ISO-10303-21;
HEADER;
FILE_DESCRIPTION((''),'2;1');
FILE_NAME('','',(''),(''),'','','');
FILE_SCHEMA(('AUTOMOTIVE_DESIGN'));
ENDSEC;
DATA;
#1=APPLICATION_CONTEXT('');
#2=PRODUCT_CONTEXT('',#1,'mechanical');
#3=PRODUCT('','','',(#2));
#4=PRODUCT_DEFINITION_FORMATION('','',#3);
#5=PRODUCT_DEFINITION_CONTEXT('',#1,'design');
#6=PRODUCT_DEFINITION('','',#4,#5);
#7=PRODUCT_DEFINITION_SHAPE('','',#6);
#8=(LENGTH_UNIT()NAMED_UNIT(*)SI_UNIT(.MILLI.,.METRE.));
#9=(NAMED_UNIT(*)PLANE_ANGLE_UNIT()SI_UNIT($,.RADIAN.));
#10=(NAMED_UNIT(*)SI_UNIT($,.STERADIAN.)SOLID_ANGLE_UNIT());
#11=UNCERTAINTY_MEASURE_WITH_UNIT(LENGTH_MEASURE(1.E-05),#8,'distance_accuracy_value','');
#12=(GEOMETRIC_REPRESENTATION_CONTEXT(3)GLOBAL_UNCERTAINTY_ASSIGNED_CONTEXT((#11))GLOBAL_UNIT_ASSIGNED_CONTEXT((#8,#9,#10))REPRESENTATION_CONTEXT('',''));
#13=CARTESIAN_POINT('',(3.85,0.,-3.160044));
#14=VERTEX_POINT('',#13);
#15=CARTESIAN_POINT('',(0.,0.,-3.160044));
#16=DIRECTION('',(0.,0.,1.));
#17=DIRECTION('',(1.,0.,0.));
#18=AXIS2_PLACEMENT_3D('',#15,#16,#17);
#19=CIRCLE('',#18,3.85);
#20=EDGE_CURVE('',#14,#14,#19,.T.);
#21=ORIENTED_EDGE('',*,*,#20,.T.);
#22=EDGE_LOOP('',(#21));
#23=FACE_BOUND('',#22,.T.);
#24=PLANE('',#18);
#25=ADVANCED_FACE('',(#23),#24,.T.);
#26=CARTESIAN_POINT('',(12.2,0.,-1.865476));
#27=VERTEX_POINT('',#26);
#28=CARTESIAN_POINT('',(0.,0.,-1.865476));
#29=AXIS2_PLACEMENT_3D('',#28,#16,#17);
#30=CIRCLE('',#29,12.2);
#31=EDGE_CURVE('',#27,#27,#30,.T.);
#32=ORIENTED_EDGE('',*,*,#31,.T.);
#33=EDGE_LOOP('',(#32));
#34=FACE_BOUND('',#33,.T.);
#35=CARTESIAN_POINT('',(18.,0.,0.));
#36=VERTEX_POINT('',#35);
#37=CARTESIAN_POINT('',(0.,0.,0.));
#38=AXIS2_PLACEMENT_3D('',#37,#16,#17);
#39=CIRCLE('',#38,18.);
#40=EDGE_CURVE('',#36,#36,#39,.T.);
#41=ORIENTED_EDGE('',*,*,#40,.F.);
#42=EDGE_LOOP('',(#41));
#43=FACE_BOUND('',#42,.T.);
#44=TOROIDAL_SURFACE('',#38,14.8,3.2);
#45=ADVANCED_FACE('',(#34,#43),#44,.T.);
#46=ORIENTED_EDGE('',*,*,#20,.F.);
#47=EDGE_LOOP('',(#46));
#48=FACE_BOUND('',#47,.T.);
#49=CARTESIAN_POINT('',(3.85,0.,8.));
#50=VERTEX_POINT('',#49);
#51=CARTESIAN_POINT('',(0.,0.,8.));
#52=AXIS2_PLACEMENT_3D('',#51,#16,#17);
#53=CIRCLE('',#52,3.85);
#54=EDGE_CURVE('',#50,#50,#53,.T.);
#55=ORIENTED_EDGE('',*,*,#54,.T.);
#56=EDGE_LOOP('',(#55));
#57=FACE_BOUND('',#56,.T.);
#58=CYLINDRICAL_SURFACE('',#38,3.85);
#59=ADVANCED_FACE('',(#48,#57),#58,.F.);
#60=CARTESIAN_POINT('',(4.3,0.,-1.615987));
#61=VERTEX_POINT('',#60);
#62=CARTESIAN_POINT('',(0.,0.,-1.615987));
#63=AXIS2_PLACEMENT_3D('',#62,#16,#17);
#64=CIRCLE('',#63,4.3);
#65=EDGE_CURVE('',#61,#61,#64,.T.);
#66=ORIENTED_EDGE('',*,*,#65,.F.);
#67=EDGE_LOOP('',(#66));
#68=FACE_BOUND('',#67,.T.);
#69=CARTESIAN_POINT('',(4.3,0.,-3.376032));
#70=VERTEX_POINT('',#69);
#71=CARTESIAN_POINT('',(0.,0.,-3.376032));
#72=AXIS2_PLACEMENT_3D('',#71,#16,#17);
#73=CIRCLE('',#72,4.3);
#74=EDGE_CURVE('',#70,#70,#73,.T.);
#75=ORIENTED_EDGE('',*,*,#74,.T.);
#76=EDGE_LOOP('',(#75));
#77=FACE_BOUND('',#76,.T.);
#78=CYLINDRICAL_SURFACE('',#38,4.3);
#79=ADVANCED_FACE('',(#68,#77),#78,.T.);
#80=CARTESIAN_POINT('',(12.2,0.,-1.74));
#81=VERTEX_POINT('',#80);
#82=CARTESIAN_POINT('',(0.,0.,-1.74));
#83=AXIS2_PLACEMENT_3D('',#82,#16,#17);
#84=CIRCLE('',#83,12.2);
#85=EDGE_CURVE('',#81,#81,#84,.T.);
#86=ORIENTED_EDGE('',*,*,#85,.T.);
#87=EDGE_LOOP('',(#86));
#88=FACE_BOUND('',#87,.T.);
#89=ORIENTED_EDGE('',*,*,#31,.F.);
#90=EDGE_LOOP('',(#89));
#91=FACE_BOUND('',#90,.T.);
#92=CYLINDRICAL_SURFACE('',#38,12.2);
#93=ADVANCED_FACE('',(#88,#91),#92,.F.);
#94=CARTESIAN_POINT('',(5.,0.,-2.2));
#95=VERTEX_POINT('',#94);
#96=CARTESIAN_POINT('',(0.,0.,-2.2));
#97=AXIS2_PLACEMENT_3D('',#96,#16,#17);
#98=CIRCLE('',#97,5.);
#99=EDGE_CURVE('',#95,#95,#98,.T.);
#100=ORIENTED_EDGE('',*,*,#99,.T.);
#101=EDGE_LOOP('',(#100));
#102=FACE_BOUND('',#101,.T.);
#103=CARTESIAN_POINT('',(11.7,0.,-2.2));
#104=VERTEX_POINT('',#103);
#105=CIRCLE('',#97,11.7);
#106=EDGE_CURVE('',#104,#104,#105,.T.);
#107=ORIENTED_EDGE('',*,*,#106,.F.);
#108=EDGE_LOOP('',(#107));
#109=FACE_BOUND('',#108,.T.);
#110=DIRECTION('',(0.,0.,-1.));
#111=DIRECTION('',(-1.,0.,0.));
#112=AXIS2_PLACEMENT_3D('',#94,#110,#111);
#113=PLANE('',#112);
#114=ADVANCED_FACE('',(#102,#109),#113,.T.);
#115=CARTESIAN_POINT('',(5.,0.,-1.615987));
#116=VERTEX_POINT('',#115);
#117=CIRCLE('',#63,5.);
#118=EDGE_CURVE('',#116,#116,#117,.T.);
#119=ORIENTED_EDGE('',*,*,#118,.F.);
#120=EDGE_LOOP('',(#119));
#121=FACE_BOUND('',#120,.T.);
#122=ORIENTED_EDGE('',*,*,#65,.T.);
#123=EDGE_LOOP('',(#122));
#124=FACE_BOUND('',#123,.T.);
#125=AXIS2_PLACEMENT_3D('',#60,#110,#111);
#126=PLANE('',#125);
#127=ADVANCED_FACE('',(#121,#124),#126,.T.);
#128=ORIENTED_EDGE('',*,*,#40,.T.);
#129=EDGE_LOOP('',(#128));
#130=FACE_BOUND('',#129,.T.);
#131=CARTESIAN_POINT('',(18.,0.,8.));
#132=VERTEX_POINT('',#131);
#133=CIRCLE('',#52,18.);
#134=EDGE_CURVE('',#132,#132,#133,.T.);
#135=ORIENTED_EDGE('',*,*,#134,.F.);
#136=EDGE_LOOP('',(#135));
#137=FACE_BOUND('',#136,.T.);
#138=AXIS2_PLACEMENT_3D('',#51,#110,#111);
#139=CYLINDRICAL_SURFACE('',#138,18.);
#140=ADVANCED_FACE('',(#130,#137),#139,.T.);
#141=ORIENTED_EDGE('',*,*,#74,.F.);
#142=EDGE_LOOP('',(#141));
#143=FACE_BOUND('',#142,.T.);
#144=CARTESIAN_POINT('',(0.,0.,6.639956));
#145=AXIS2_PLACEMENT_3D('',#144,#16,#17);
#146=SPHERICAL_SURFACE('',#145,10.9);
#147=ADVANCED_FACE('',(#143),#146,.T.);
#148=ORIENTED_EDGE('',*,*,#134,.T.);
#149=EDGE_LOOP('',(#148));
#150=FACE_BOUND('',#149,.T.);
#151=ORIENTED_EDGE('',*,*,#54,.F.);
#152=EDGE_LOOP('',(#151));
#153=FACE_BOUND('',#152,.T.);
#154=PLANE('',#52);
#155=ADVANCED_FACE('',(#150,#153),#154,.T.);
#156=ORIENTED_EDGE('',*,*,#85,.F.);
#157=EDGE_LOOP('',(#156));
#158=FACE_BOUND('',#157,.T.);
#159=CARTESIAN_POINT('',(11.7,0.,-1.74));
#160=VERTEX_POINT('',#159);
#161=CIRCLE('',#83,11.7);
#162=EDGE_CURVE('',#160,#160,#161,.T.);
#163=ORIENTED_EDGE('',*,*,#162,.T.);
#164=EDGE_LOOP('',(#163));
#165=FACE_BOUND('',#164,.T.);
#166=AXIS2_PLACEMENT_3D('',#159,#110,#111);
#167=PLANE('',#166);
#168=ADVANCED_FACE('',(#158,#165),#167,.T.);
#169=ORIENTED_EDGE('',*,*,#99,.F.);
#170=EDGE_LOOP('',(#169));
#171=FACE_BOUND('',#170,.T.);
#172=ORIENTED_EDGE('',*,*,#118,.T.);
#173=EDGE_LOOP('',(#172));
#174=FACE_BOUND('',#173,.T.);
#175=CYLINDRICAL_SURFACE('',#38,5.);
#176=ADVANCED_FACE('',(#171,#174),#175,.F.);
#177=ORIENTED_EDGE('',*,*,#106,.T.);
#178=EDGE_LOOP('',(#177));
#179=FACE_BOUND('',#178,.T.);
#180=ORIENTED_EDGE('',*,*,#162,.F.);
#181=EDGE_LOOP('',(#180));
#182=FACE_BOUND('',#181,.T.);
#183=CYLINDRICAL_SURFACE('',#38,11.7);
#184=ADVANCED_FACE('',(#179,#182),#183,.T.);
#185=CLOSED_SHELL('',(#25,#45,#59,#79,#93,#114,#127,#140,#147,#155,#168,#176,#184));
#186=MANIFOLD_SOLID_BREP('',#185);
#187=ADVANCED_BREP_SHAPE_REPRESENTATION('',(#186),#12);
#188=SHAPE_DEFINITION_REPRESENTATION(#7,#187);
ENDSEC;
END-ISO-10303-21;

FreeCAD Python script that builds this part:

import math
import FreeCAD as App
import Part
import Sketcher

doc = App.newDocument("Part")
params = doc.addObject("Spreadsheet::Sheet", "Params")
for row, (alias, value) in enumerate([
    ("sketch1_radius", "3.2 mm"),
    ("sketch1_radius2", "10.9 mm"),
    ("sketch1_width", "0.5 mm"),
    ("sketch1_width2", "6.7 mm"),
    ("sketch1_width3", "0.7 mm"),
    ("revolution_angle", "360 deg"),
    ("sketch2_diameter", "36 mm"),
    ("sketch2_diameter2", "7.7 mm"),
    ("pad1_length", "8 mm"),
], start=1):
    params.set(f"A{row}", alias)
    params.set(f"B{row}", "=" + value)
    params.setAlias(f"B{row}", alias)

body = doc.addObject("PartDesign::Body", "Body")

# Sketch on XZ plane
sketch1 = doc.addObject("Sketcher::SketchObject", "Sketch")
body.addObject(sketch1)
sketch1.AttachmentSupport = (doc.XZ_Plane, [""])
sketch1.MapMode = "FlatFace"
sketch1.addGeometry(Part.LineSegment(App.Vector(0, -3.16, 0), App.Vector(3.85, -3.16, 0)), False)
sketch1.addGeometry(Part.LineSegment(App.Vector(3.85, -3.16, 0), App.Vector(3.85, 0, 0)), False)
sketch1.addGeometry(Part.LineSegment(App.Vector(3.85, 0, 0), App.Vector(18, 0, 0)), False)
sketch1.addGeometry(Part.ArcOfCircle(Part.Circle(App.Vector(14.8, 0, 0), App.Vector(0, 0, 1), 3.2), math.radians(-144), math.radians(0)), False)
sketch1.addGeometry(Part.LineSegment(App.Vector(12.2, -1.87, 0), App.Vector(12.2, -1.74, 0)), False)
sketch1.addGeometry(Part.LineSegment(App.Vector(12.2, -1.74, 0), App.Vector(11.7, -1.74, 0)), False)
sketch1.addGeometry(Part.LineSegment(App.Vector(11.7, -1.74, 0), App.Vector(11.7, -2.2, 0)), False)
sketch1.addGeometry(Part.LineSegment(App.Vector(11.7, -2.2, 0), App.Vector(5, -2.2, 0)), False)
sketch1.addGeometry(Part.LineSegment(App.Vector(5, -2.2, 0), App.Vector(5, -1.62, 0)), False)
sketch1.addGeometry(Part.LineSegment(App.Vector(5, -1.62, 0), App.Vector(4.3, -1.62, 0)), False)
sketch1.addGeometry(Part.LineSegment(App.Vector(4.3, -1.62, 0), App.Vector(4.3, -3.38, 0)), False)
sketch1.addGeometry(Part.ArcOfCircle(Part.Circle(App.Vector(0, 6.64, 0), App.Vector(0, 0, 1), 10.9), math.radians(-90), math.radians(-67)), False)
sketch1.addGeometry(Part.LineSegment(App.Vector(0, -4.26, 0), App.Vector(0, -3.16, 0)), False)
sketch1.addConstraint(Sketcher.Constraint("Coincident", 0, 2, 1, 1))
sketch1.addConstraint(Sketcher.Constraint("Coincident", 1, 2, 2, 1))
sketch1.addConstraint(Sketcher.Constraint("Coincident", 2, 2, 3, 2))
sketch1.addConstraint(Sketcher.Constraint("Coincident", 3, 1, 4, 1))
sketch1.addConstraint(Sketcher.Constraint("Coincident", 4, 2, 5, 1))
sketch1.addConstraint(Sketcher.Constraint("Coincident", 5, 2, 6, 1))
sketch1.addConstraint(Sketcher.Constraint("Coincident", 6, 2, 7, 1))
sketch1.addConstraint(Sketcher.Constraint("Coincident", 7, 2, 8, 1))
sketch1.addConstraint(Sketcher.Constraint("Coincident", 8, 2, 9, 1))
sketch1.addConstraint(Sketcher.Constraint("Coincident", 9, 2, 10, 1))
sketch1.addConstraint(Sketcher.Constraint("Coincident", 10, 2, 11, 2))
sketch1.addConstraint(Sketcher.Constraint("Coincident", 11, 1, 12, 1))
sketch1.addConstraint(Sketcher.Constraint("Coincident", 12, 2, 0, 1))
sketch1.addConstraint(Sketcher.Constraint("Horizontal", 0))
sketch1.addConstraint(Sketcher.Constraint("Vertical", 1))
sketch1.addConstraint(Sketcher.Constraint("Horizontal", 2))
sketch1.addConstraint(Sketcher.Constraint("Vertical", 4))
sketch1.addConstraint(Sketcher.Constraint("Horizontal", 5))
sketch1.addConstraint(Sketcher.Constraint("Vertical", 6))
sketch1.addConstraint(Sketcher.Constraint("Horizontal", 7))
sketch1.addConstraint(Sketcher.Constraint("Vertical", 8))
sketch1.addConstraint(Sketcher.Constraint("Horizontal", 9))
sketch1.addConstraint(Sketcher.Constraint("Vertical", 10))
sketch1.addConstraint(Sketcher.Constraint("Vertical", 12))
sketch1.addConstraint(Sketcher.Constraint("PointOnObject", 3, 3, -1))
sketch1.addConstraint(Sketcher.Constraint("PointOnObject", 11, 3, -2))
sketch1.addConstraint(Sketcher.Constraint("PointOnObject", 1, 2, -1))
sketch1.addConstraint(Sketcher.Constraint("PointOnObject", 11, 1, -2))
sketch1.addConstraint(Sketcher.Constraint("Radius", 3, 3.2))
sketch1.addConstraint(Sketcher.Constraint("Radius", 11, 10.9))
sketch1.addConstraint(Sketcher.Constraint("DistanceX", 5, 2, 5, 1, 0.5))
sketch1.addConstraint(Sketcher.Constraint("DistanceX", 7, 2, 7, 1, 6.7))
sketch1.addConstraint(Sketcher.Constraint("DistanceX", 9, 2, 9, 1, 0.7))
sketch1.addConstraint(Sketcher.Constraint("DistanceY", 12, 1, 12, 2, 1.1))
sketch1.addConstraint(Sketcher.Constraint("DistanceX", -1, 1, 2, 2, 18.0))
sketch1.addConstraint(Sketcher.Constraint("DistanceX", -1, 1, 7, 2, 5.0))
sketch1.addConstraint(Sketcher.Constraint("DistanceX", 0, 1, 0, 2, 3.85))
sketch1.addConstraint(Sketcher.Constraint("DistanceY", 6, 2, 6, 1, 0.46))
sketch1.addConstraint(Sketcher.Constraint("DistanceY", 6, 2, -1, 1, 2.2))
sketch1.addConstraint(Sketcher.Constraint("DistanceY", 1, 1, 1, 2, 3.160044))
sketch1.addConstraint(Sketcher.Constraint("DistanceY", 8, 1, 8, 2, 0.584013))
sketch1.setExpression("Constraints[28]", "Params.sketch1_radius")
sketch1.setExpression("Constraints[29]", "Params.sketch1_radius2")
sketch1.setExpression("Constraints[30]", "Params.sketch1_width")
sketch1.setExpression("Constraints[31]", "Params.sketch1_width2")
sketch1.setExpression("Constraints[32]", "Params.sketch1_width3")
revolution = doc.addObject("PartDesign::Revolution", "Revolution")
body.addObject(revolution)
revolution.Profile = sketch1
revolution.ReferenceAxis = (sketch1, ["V_Axis"])
revolution.setExpression("Angle", "Params.revolution_angle")

# Sketch on XY plane
sketch2 = doc.addObject("Sketcher::SketchObject", "Sketch001")
body.addObject(sketch2)
sketch2.AttachmentSupport = (doc.XY_Plane, [""])
sketch2.MapMode = "FlatFace"
sketch2.addGeometry(Part.Circle(App.Vector(0, 0, 0), App.Vector(0, 0, 1), 18), False)
sketch2.addGeometry(Part.Circle(App.Vector(0, 0, 0), App.Vector(0, 0, 1), 3.9), False)
sketch2.addConstraint(Sketcher.Constraint("Coincident", 0, 3, -1, 1))
sketch2.addConstraint(Sketcher.Constraint("Coincident", 1, 3, -1, 1))
sketch2.addConstraint(Sketcher.Constraint("Diameter", 0, 36.0))
sketch2.addConstraint(Sketcher.Constraint("Diameter", 1, 7.7))
sketch2.setExpression("Constraints[2]", "Params.sketch2_diameter")
sketch2.setExpression("Constraints[3]", "Params.sketch2_diameter2")
pad1 = doc.addObject("PartDesign::Pad", "Pad")
body.addObject(pad1)
pad1.Profile = sketch2
pad1.setExpression("Length", "Params.pad1_length")

doc.recompute()
